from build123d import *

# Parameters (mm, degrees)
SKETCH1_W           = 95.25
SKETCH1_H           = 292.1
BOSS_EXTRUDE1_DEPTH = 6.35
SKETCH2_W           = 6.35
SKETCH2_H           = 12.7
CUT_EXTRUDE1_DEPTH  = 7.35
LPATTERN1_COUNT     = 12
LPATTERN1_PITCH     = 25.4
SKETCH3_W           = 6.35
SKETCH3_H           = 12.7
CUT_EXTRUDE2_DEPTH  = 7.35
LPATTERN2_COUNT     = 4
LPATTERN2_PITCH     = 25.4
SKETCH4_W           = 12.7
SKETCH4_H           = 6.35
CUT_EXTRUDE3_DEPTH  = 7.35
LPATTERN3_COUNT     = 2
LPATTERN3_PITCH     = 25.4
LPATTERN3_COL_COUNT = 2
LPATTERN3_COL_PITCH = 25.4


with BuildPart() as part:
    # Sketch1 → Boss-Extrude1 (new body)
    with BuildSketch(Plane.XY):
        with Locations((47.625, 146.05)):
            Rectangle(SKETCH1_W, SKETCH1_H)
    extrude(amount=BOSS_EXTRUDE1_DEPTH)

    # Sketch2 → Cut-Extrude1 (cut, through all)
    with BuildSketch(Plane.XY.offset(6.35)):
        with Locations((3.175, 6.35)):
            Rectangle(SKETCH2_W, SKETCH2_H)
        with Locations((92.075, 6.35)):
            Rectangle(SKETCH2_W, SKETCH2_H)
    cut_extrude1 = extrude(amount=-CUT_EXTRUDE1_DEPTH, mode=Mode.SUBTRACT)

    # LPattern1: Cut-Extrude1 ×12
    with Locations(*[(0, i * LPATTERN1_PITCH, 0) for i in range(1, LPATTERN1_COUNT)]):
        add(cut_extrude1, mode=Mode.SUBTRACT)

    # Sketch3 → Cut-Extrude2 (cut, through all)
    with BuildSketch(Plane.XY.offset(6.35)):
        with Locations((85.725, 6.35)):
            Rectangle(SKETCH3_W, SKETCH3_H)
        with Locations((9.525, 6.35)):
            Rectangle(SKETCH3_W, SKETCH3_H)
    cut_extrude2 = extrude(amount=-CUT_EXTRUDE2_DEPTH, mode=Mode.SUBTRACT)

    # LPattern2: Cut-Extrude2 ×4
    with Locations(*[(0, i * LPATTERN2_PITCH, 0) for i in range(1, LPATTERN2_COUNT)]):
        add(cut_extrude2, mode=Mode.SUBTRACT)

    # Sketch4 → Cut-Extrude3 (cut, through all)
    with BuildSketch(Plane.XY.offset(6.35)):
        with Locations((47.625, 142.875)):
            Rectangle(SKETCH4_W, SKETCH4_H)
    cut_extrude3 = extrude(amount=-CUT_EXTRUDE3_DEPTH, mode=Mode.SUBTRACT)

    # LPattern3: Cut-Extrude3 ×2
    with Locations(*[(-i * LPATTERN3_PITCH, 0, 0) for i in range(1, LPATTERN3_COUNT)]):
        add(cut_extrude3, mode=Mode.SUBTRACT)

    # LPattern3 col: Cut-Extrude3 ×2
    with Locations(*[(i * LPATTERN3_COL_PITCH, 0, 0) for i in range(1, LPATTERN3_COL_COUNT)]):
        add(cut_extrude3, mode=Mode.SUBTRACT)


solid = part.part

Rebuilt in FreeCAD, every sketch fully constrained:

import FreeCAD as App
import Part
import Sketcher

V = App.Vector
Q = App.Units.Quantity


def add_polygon(sketch, points):
    """Adds a closed chain of lines whose ends are joined by coincident constraints."""
    first, n = sketch.GeometryCount, len(points)
    for a, b in zip(points, points[1:] + points[:1]):
        sketch.addGeometry(Part.LineSegment(App.Vector(*a, 0), App.Vector(*b, 0)), False)
    for i in range(n):
        sketch.addConstraint(Sketcher.Constraint("Coincident", first + i, 2, first + (i + 1) % n, 1))

doc = App.newDocument("Part")
params = doc.addObject("Spreadsheet::Sheet", "Params")
for row, (alias, value) in enumerate([
    ("sketch1_height", "11.5 in"),
    ("sketch1_width", "3.75 in"),
    ("pad1_length", "0.25 in"),
    ("sketch2_height", "0.5 in"),
    ("sketch2_width", "0.25 in"),
    ("linearpattern_pitch", "1 in"),
    ("sketch3_height", "0.5 in"),
    ("sketch3_width", "0.25 in"),
    ("linearpattern2_pitch", "1 in"),
    ("sketch4_width", "0.5 in"),
    ("sketch4_height", "0.25 in"),
    ("linearpattern3_pitch", "1 in"),
    ("linearpattern4_pitch", "1 in"),
], start=1):
    params.set(f"A{row}", alias)
    params.set(f"B{row}", "=" + value)
    params.setAlias(f"B{row}", alias)

body = doc.addObject("PartDesign::Body", "Body")

sketch1 = body.newObject("Sketcher::SketchObject", "Sketch")
sketch1.AttachmentSupport = (doc.getObject("XY_Plane"), [""])
sketch1.MapMode = "FlatFace"
add_polygon(sketch1, [(0, 292), (0, 0), (95, 0), (95, 292)])
sketch1.addConstraint(Sketcher.Constraint("Vertical", 0))
sketch1.addConstraint(Sketcher.Constraint("Horizontal", 1))
sketch1.addConstraint(Sketcher.Constraint("Vertical", 2))
sketch1.addConstraint(Sketcher.Constraint("Horizontal", 3))
sketch1.addConstraint(Sketcher.Constraint("Coincident", 0, 2, -1, 1))
sketch1.addConstraint(Sketcher.Constraint("DistanceY", 0, 2, 0, 1, Q("11.5 in")))
sketch1.addConstraint(Sketcher.Constraint("DistanceX", 1, 1, 1, 2, Q("3.75 in")))
sketch1.setExpression("Constraints[9]", "Params.sketch1_height")
sketch1.setExpression("Constraints[10]", "Params.sketch1_width")
pad1 = body.newObject("PartDesign::Pad", "Pad")
pad1.Profile = sketch1
pad1.setExpression("Length", "Params.pad1_length")

sketch2 = body.newObject("Sketcher::SketchObject", "Sketch001")
sketch2.AttachmentSupport = (doc.getObject("XY_Plane"), [""])
sketch2.MapMode = "FlatFace"
sketch2.AttachmentOffset = App.Placement(V(0, 0, 0.25 * 25.4), App.Rotation())
add_polygon(sketch2, [(0, 13), (0, 0), (6, 0), (6, 13)])
add_polygon(sketch2, [(89, 13), (89, 0), (95, 0), (95, 13)])
sketch2.addConstraint(Sketcher.Constraint("Vertical", 0))
sketch2.addConstraint(Sketcher.Constraint("Horizontal", 1))
sketch2.addConstraint(Sketcher.Constraint("Vertical", 2))
sketch2.addConstraint(Sketcher.Constraint("Horizontal", 3))
sketch2.addConstraint(Sketcher.Constraint("Vertical", 4))
sketch2.addConstraint(Sketcher.Constraint("Horizontal", 5))
sketch2.addConstraint(Sketcher.Constraint("Vertical", 6))
sketch2.addConstraint(Sketcher.Constraint("Horizontal", 7))
sketch2.addConstraint(Sketcher.Constraint("Coincident", 0, 2, -1, 1))
sketch2.addConstraint(Sketcher.Constraint("PointOnObject", 4, 2, -1))
sketch2.addConstraint(Sketcher.Constraint("Horizontal", 3, 2, 6, 2))
sketch2.addConstraint(Sketcher.Constraint("Equal", 3, 5))
sketch2.addConstraint(Sketcher.Constraint("DistanceY", 0, 2, 0, 1, Q("0.5 in")))
sketch2.addConstraint(Sketcher.Constraint("DistanceX", 1, 1, 1, 2, Q("0.25 in")))
sketch2.addConstraint(Sketcher.Constraint("DistanceX", -1, 1, 4, 2, Q("3.5 in")))
sketch2.setExpression("Constraints[20]", "Params.sketch2_height")
sketch2.setExpression("Constraints[21]", "Params.sketch2_width")
pocket1 = body.newObject("PartDesign::Pocket", "Pocket")
pocket1.Profile = sketch2
pocket1.Type = "ThroughAll"
doc.recompute()

linearpattern = body.newObject("PartDesign::LinearPattern", "LinearPattern")
linearpattern.Originals = [pocket1]
linearpattern.Direction = (doc.getObject("Y_Axis"), [""])
linearpattern.Mode = "offset"
linearpattern.setExpression("Offset", "Params.linearpattern_pitch")
linearpattern.Occurrences = 12
body.Tip = linearpattern

sketch3 = body.newObject("Sketcher::SketchObject", "Sketch002")
sketch3.AttachmentSupport = (doc.getObject("XY_Plane"), [""])
sketch3.MapMode = "FlatFace"
sketch3.AttachmentOffset = App.Placement(V(0, 0, 0.25 * 25.4), App.Rotation())
add_polygon(sketch3, [(83, 13), (83, 0), (89, 0), (89, 13)])
add_polygon(sketch3, [(6, 13), (6, 0), (13, 0), (13, 13)])
sketch3.addConstraint(Sketcher.Constraint("Vertical", 0))
sketch3.addConstraint(Sketcher.Constraint("Horizontal", 1))
sketch3.addConstraint(Sketcher.Constraint("Vertical", 2))
sketch3.addConstraint(Sketcher.Constraint("Horizontal", 3))
sketch3.addConstraint(Sketcher.Constraint("Vertical", 4))
sketch3.addConstraint(Sketcher.Constraint("Horizontal", 5))
sketch3.addConstraint(Sketcher.Constraint("Vertical", 6))
sketch3.addConstraint(Sketcher.Constraint("Horizontal", 7))
sketch3.addConstraint(Sketcher.Constraint("PointOnObject", 0, 2, -1))
sketch3.addConstraint(Sketcher.Constraint("PointOnObject", 4, 2, -1))
sketch3.addConstraint(Sketcher.Constraint("Horizontal", 3, 2, 6, 2))
sketch3.addConstraint(Sketcher.Constraint("Equal", 3, 5))
sketch3.addConstraint(Sketcher.Constraint("DistanceY", 0, 2, 0, 1, Q("0.5 in")))
sketch3.addConstraint(Sketcher.Constraint("DistanceX", 4, 2, 0, 2, Q("3 in")))
sketch3.addConstraint(Sketcher.Constraint("DistanceX", 1, 1, 1, 2, Q("0.25 in")))
sketch3.addConstraint(Sketcher.Constraint("DistanceX", -1, 1, 1, 2, Q("3.5 in")))
sketch3.setExpression("Constraints[20]", "Params.sketch3_height")
sketch3.setExpression("Constraints[22]", "Params.sketch3_width")
pocket2 = body.newObject("PartDesign::Pocket", "Pocket001")
pocket2.Profile = sketch3
pocket2.Type = "ThroughAll"
doc.recompute()

linearpattern2 = body.newObject("PartDesign::LinearPattern", "LinearPattern001")
linearpattern2.Originals = [pocket2]
linearpattern2.Direction = (doc.getObject("Y_Axis"), [""])
linearpattern2.Mode = "offset"
linearpattern2.setExpression("Offset", "Params.linearpattern2_pitch")
linearpattern2.Occurrences = 4
body.Tip = linearpattern2

sketch4 = body.newObject("Sketcher::SketchObject", "Sketch003")
sketch4.AttachmentSupport = (doc.getObject("XY_Plane"), [""])
sketch4.MapMode = "FlatFace"
sketch4.AttachmentOffset = App.Placement(V(0, 0, 0.25 * 25.4), App.Rotation())
add_polygon(sketch4, [(41, 146), (41, 140), (54, 140), (54, 146)])
sketch4.addConstraint(Sketcher.Constraint("Vertical", 0))
sketch4.addConstraint(Sketcher.Constraint("Horizontal", 1))
sketch4.addConstraint(Sketcher.Constraint("Vertical", 2))
sketch4.addConstraint(Sketcher.Constraint("Horizontal", 3))
sketch4.addConstraint(Sketcher.Constraint("DistanceX", 1, 1, 1, 2, Q("0.5 in")))
sketch4.addConstraint(Sketcher.Constraint("DistanceY", 0, 2, 0, 1, Q("0.25 in")))
sketch4.addConstraint(Sketcher.Constraint("DistanceY", -1, 1, 0, 2, Q("5.5 in")))
sketch4.addConstraint(Sketcher.Constraint("DistanceX", -1, 1, 0, 2, Q("1.625 in")))
sketch4.setExpression("Constraints[8]", "Params.sketch4_width")
sketch4.setExpression("Constraints[9]", "Params.sketch4_height")
pocket3 = body.newObject("PartDesign::Pocket", "Pocket002")
pocket3.Profile = sketch4
pocket3.Type = "ThroughAll"
doc.recompute()

linearpattern3 = body.newObject("PartDesign::LinearPattern", "LinearPattern002")
linearpattern3.Originals = [pocket3]
linearpattern3.Direction = (doc.getObject("X_Axis"), [""])
linearpattern3.Mode = "offset"
linearpattern3.setExpression("Offset", "Params.linearpattern3_pitch")
linearpattern3.Occurrences = 2
linearpattern3.Reversed = True
body.Tip = linearpattern3
doc.recompute()

linearpattern4 = body.newObject("PartDesign::LinearPattern", "LinearPattern003")
linearpattern4.Originals = [pocket3]
linearpattern4.Direction = (doc.getObject("X_Axis"), [""])
linearpattern4.Mode = "offset"
linearpattern4.setExpression("Offset", "Params.linearpattern4_pitch")
linearpattern4.Occurrences = 2
body.Tip = linearpattern4

doc.recompute()
